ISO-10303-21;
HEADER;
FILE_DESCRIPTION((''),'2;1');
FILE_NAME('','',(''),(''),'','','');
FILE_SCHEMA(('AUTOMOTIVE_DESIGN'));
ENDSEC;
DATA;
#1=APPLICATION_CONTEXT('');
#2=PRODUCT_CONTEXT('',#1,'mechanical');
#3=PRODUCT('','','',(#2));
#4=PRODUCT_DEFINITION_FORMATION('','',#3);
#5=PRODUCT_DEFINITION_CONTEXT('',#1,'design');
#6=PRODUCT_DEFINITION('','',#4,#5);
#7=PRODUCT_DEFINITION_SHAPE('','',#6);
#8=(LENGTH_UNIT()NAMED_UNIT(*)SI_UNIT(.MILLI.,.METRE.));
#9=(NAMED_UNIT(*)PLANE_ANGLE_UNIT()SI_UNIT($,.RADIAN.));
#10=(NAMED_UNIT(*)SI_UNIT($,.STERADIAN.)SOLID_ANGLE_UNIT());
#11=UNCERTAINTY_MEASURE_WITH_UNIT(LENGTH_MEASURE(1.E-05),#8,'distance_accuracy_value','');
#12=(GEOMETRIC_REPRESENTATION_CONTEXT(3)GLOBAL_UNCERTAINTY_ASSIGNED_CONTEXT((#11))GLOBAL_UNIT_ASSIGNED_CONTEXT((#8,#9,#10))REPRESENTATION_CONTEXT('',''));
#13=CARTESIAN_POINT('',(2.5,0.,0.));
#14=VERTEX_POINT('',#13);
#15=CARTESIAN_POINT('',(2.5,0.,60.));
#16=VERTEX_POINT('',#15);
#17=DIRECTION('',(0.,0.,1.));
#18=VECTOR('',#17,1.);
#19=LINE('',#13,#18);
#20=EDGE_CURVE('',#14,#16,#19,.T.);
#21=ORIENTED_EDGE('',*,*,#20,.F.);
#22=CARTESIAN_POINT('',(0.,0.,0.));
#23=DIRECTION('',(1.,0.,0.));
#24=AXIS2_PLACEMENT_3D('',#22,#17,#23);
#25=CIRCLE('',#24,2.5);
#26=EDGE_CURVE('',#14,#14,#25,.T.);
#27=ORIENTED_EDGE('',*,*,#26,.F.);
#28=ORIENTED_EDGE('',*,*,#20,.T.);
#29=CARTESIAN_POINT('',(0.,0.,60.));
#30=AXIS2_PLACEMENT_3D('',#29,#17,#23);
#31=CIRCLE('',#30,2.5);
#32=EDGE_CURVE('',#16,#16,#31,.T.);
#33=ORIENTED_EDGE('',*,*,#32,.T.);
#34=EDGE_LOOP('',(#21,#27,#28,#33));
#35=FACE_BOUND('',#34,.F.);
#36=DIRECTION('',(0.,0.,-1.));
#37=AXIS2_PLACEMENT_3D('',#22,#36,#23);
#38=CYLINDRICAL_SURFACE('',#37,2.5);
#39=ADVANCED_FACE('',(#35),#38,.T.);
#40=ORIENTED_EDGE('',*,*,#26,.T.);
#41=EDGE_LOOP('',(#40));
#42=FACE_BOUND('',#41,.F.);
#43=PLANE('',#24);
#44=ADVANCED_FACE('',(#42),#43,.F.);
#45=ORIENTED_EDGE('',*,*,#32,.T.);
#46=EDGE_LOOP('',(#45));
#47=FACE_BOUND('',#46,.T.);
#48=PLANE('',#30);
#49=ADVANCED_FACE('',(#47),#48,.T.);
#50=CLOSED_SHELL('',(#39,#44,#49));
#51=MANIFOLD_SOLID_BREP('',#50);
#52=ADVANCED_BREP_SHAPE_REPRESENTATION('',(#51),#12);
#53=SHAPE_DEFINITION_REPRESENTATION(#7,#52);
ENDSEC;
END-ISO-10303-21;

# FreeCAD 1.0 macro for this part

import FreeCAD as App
import Part
import Sketcher
from FreeCAD import Vector

doc = App.newDocument("Part")
params = doc.addObject("Spreadsheet::Sheet", "Params")
for row, (alias, value) in enumerate([
    ("sketch1_diameter", "5 mm"),
    ("pad1_length", "60 mm"),
], start=1):
    params.set(f"A{row}", alias)
    params.set(f"B{row}", "=" + value)
    params.setAlias(f"B{row}", alias)

body = doc.addObject("PartDesign::Body", "Body")

sketch1 = doc.addObject("Sketcher::SketchObject", "Sketch")
body.addObject(sketch1)
sketch1.AttachmentSupport = (doc.XY_Plane, [""])
sketch1.MapMode = "FlatFace"
sketch1.addGeometry(Part.Circle(Vector(0, 0, 0), Vector(0, 0, 1), 2.5), False)
sketch1.addConstraint([
    Sketcher.Constraint("Coincident", 0, 3, -1, 1),
    Sketcher.Constraint("Diameter", 0, 5.0),
])
sketch1.setExpression("Constraints[1]", "Params.sketch1_diameter")
pad1 = doc.addObject("PartDesign::Pad", "Pad")
body.addObject(pad1)
pad1.Profile = sketch1
pad1.setExpression("Length", "Params.pad1_length")

doc.recompute()
